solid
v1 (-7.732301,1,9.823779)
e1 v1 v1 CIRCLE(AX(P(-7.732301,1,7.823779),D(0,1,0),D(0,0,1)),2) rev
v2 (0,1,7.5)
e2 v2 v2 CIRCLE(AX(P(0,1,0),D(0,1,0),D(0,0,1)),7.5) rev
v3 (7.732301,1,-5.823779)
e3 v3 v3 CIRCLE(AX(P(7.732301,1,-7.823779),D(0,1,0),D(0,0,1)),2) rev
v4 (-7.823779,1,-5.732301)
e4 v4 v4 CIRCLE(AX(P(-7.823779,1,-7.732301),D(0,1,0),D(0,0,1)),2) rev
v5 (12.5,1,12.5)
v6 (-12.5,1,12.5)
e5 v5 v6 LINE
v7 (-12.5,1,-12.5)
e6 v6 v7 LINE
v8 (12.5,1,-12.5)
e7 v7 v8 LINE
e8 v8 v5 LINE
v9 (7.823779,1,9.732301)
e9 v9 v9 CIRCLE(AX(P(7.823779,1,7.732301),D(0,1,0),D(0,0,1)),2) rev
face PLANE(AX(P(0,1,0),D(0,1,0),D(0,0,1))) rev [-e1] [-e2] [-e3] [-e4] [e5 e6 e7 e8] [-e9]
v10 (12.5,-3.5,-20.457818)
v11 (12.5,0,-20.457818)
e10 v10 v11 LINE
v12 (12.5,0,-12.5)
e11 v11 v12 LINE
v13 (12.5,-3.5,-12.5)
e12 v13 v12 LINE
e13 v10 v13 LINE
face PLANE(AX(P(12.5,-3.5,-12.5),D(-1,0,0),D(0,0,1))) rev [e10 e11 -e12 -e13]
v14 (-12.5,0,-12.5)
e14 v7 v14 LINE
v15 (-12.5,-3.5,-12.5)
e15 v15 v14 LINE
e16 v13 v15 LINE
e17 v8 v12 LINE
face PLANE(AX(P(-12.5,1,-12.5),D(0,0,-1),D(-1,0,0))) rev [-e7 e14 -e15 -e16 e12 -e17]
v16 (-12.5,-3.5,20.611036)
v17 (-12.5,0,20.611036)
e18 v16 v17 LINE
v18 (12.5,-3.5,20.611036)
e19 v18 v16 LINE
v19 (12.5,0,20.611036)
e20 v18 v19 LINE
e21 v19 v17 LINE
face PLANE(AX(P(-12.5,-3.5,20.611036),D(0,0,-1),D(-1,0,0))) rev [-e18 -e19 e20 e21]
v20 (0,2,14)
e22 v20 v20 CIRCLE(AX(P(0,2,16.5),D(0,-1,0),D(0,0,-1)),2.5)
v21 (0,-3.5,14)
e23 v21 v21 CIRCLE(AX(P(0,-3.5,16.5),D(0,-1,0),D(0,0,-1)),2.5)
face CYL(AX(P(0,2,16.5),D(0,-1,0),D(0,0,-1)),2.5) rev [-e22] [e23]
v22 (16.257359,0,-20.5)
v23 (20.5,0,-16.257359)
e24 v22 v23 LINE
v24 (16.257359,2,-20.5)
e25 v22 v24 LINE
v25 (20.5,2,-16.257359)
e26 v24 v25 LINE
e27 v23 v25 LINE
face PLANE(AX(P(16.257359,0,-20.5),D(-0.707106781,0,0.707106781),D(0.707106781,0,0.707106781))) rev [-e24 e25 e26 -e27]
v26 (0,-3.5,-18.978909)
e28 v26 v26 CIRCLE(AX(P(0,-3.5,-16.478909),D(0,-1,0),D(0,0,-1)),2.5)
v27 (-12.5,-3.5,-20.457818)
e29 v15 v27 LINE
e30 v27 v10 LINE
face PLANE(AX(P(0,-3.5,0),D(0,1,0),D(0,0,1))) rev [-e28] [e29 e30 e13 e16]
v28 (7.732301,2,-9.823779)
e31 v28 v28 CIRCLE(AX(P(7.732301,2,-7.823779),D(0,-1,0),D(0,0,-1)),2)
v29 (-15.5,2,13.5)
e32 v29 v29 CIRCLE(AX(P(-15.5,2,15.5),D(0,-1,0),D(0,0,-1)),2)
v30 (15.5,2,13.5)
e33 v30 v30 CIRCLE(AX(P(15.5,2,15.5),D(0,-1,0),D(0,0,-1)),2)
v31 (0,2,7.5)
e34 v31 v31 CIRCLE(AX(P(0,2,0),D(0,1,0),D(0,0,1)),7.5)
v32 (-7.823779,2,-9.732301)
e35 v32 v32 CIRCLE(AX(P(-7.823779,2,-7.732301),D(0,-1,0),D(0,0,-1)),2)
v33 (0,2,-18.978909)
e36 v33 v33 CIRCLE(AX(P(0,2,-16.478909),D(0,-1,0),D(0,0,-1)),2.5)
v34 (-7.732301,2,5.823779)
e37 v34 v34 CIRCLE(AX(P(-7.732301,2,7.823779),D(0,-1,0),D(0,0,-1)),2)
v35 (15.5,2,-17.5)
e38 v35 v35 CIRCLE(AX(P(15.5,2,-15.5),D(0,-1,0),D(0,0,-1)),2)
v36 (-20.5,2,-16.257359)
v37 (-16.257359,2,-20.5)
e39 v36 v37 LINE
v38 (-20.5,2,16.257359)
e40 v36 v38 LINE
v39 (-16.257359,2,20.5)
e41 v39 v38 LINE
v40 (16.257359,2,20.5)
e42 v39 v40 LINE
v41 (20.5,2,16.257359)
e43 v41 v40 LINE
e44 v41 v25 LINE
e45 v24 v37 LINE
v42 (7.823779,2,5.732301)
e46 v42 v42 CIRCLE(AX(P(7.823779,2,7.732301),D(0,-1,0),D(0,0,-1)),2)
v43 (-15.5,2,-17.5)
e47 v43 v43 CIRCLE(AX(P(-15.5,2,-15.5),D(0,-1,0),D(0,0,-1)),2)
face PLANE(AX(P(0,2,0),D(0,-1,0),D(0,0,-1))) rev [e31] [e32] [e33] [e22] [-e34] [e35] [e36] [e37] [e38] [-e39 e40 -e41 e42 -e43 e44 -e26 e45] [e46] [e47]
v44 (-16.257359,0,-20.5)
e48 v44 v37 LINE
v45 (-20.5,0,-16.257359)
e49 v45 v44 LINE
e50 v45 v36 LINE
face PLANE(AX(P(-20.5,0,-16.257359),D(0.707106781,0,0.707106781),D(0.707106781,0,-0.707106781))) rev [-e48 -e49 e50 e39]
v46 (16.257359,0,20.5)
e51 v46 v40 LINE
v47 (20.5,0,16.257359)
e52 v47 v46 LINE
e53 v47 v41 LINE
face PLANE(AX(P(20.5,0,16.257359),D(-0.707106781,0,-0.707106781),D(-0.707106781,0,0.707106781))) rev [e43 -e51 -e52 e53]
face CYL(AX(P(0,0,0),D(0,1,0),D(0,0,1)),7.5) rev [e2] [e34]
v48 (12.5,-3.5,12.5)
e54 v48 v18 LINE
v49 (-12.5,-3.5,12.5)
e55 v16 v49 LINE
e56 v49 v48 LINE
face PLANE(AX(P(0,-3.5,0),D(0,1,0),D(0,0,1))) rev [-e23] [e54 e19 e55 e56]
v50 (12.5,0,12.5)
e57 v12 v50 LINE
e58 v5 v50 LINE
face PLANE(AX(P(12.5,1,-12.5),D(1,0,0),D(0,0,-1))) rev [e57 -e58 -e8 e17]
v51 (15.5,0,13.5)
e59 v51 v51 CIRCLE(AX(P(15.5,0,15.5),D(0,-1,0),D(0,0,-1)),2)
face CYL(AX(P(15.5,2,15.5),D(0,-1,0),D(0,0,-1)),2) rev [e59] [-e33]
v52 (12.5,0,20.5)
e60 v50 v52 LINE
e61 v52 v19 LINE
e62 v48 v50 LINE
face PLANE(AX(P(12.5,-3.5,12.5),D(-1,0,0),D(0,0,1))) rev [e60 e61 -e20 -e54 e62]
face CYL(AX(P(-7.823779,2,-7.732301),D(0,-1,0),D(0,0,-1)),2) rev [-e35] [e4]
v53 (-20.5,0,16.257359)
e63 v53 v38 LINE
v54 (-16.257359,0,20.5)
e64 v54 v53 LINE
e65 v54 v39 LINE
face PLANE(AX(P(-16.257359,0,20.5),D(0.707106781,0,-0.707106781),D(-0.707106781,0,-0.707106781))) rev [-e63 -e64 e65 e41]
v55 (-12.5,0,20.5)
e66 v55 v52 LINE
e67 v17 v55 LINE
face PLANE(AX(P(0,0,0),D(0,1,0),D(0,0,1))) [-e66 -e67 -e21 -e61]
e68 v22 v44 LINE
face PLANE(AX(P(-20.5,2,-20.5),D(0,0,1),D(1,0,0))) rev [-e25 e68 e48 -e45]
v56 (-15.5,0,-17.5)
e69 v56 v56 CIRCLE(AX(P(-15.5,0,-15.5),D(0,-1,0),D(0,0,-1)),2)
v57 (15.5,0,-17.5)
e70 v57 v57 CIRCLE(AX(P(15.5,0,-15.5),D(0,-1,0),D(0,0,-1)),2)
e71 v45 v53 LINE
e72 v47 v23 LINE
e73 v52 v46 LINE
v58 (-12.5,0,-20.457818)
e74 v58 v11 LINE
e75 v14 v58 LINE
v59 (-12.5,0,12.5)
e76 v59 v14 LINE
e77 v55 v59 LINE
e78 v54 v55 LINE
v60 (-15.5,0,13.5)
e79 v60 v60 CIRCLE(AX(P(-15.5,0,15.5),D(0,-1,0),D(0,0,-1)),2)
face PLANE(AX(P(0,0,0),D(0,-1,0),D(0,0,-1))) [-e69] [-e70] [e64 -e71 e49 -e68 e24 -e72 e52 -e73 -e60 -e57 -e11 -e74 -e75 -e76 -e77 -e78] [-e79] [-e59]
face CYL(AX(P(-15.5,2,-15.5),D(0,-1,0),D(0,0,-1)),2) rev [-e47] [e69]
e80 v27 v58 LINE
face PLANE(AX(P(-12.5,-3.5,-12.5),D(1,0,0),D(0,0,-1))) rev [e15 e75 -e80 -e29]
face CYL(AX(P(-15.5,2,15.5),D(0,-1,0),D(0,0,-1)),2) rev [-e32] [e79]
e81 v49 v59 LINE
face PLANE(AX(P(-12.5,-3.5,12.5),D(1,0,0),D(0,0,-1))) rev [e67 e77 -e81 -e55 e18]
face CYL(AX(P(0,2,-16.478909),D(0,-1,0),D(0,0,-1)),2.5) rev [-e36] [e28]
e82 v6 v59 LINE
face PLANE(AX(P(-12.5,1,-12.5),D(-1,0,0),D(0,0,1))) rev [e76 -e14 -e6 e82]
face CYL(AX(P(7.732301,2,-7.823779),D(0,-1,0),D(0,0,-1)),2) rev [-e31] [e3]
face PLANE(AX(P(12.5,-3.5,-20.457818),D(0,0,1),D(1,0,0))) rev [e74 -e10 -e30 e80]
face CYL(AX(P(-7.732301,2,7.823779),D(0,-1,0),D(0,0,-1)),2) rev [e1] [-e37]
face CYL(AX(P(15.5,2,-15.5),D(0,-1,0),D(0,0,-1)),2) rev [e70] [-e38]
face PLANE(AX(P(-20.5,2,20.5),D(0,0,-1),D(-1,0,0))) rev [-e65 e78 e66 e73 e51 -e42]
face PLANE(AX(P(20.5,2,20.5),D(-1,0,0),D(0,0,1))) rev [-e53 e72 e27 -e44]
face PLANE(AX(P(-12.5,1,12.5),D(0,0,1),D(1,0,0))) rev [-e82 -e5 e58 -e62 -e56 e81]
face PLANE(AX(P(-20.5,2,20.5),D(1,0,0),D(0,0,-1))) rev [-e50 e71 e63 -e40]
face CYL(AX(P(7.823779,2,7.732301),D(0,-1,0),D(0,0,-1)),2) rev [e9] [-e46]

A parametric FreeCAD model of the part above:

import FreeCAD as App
import Part
import Sketcher
from FreeCAD import Vector
Q = App.Units.Quantity

doc = App.newDocument("Part")
body = doc.addObject("PartDesign::Body", "Body")

# Sketch on XZ plane
sketch1 = body.newObject("Sketcher::SketchObject", "Sketch")
sketch1.AttachmentSupport = (doc.getObject("XZ_Plane"), [""])
sketch1.MapMode = "FlatFace"
sketch1.addGeometry([
    Part.LineSegment(Vector(-20.5, -20.5, 0), Vector(-20.5, 20.5, 0)),
    Part.LineSegment(Vector(-20.5, 20.5, 0), Vector(20.5, 20.5, 0)),
    Part.LineSegment(Vector(20.5, 20.5, 0), Vector(20.5, -20.5, 0)),
    Part.LineSegment(Vector(20.5, -20.5, 0), Vector(-20.5, -20.5, 0)),
], False)
sketch1.addConstraint([
    Sketcher.Constraint("Coincident", 0, 2, 1, 1),
    Sketcher.Constraint("Coincident", 1, 2, 2, 1),
    Sketcher.Constraint("Coincident", 2, 2, 3, 1),
    Sketcher.Constraint("Coincident", 3, 2, 0, 1),
    Sketcher.Constraint("Vertical", 0),
    Sketcher.Constraint("Horizontal", 1),
    Sketcher.Constraint("Vertical", 2),
    Sketcher.Constraint("Horizontal", 3),
    Sketcher.Constraint("Symmetric", 0, 2, 2, 2, -1, 1),
    Sketcher.Constraint("Equal", 3, 0),
    Sketcher.Constraint("DistanceX", 1, 1, 1, 2, Q("41 mm")),
])
pad1 = body.newObject("PartDesign::Pad", "Pad")
pad1.Profile = sketch1
pad1.Length = 2
pad1.Reversed = True

# Sketch on XZ plane
sketch2 = body.newObject("Sketcher::SketchObject", "Sketch001")
sketch2.AttachmentSupport = (doc.getObject("XZ_Plane"), [""])
sketch2.MapMode = "FlatFace"
sketch2.addGeometry([
    Part.Circle(Vector(-7.732301, 7.823779, 0), Vector(0, 0, 1), 2),
    Part.Circle(Vector(7.823779, 7.732301, 0), Vector(0, 0, 1), 2),
    Part.Circle(Vector(7.732301, -7.823779, 0), Vector(0, 0, 1), 2),
    Part.Circle(Vector(-7.823779, -7.732301, 0), Vector(0, 0, 1), 2),
], False)
sketch2.addConstraint([
    Sketcher.Constraint("Equal", 0, 1),
    Sketcher.Constraint("Equal", 1, 2),
    Sketcher.Constraint("Equal", 2, 3),
    Sketcher.Constraint("Symmetric", 0, 3, 2, 3, -1, 1),
    Sketcher.Constraint("Symmetric", 1, 3, 3, 3, -1, 1),
    Sketcher.Constraint("Diameter", 0, Q("4 mm")),
    Sketcher.Constraint("DistanceX", 0, 3, -1, 1, Q("7.732301 mm")),
    Sketcher.Constraint("DistanceY", -1, 1, 1, 3, Q("7.732301 mm")),
    Sketcher.Constraint("DistanceY", -1, 1, 0, 3, Q("7.823779 mm")),
    Sketcher.Constraint("DistanceX", -1, 1, 1, 3, Q("7.823779 mm")),
])
pocket1 = body.newObject("PartDesign::Pocket", "Pocket")
pocket1.Profile = sketch2
pocket1.Type = "ThroughAll"

# Sketch on XZ plane
sketch3 = body.newObject("Sketcher::SketchObject", "Sketch002")
sketch3.AttachmentSupport = (doc.getObject("XZ_Plane"), [""])
sketch3.MapMode = "FlatFace"
sketch3.AttachmentOffset = App.Placement(Vector(0, 0, -2), App.Rotation())
sketch3.addGeometry(Part.Circle(Vector(0, 0, 0), Vector(0, 0, 1), 7.5), False)
sketch3.addConstraint([
    Sketcher.Constraint("Coincident", 0, 3, -1, 1),
    Sketcher.Constraint("Diameter", 0, Q("15 mm")),
])
pocket2 = body.newObject("PartDesign::Pocket", "Pocket001")
pocket2.Profile = sketch3
pocket2.Type = "ThroughAll"
pocket2.Reversed = True

# Sketch on XZ plane
sketch4 = body.newObject("Sketcher::SketchObject", "Sketch003")
sketch4.AttachmentSupport = (doc.getObject("XZ_Plane"), [""])
sketch4.MapMode = "FlatFace"
sketch4.addGeometry([
    Part.LineSegment(Vector(-12.5, 12.5, 0), Vector(-12.5, -12.5, 0)),
    Part.LineSegment(Vector(-12.5, -12.5, 0), Vector(12.5, -12.5, 0)),
    Part.LineSegment(Vector(12.5, -12.5, 0), Vector(12.5, 12.5, 0)),
    Part.LineSegment(Vector(12.5, 12.5, 0), Vector(-12.5, 12.5, 0)),
], False)
sketch4.addConstraint([
    Sketcher.Constraint("Coincident", 0, 2, 1, 1),
    Sketcher.Constraint("Coincident", 1, 2, 2, 1),
    Sketcher.Constraint("Coincident", 2, 2, 3, 1),
    Sketcher.Constraint("Coincident", 3, 2, 0, 1),
    Sketcher.Constraint("Vertical", 0),
    Sketcher.Constraint("Horizontal", 1),
    Sketcher.Constraint("Vertical", 2),
    Sketcher.Constraint("Horizontal", 3),
    Sketcher.Constraint("Symmetric", 0, 2, 2, 2, -1, 1),
    Sketcher.Constraint("Equal", 3, 0),
    Sketcher.Constraint("DistanceX", 1, 1, 1, 2, Q("25 mm")),
])
pocket3 = body.newObject("PartDesign::Pocket", "Pocket002")
pocket3.Profile = sketch4
pocket3.Length = 1

# Sketch on XZ plane
sketch5 = body.newObject("Sketcher::SketchObject", "Sketch004")
sketch5.AttachmentSupport = (doc.getObject("XZ_Plane"), [""])
sketch5.MapMode = "FlatFace"
sketch5.AttachmentOffset = App.Placement(Vector(0, 0, -2), App.Rotation())
sketch5.addGeometry([
    Part.LineSegment(Vector(-20.5, -16.257359, 0), Vector(-16.257359, -20.5, 0)),  # 0
    Part.LineSegment(Vector(-16.257359, -20.5, 0), Vector(-20.5, -20.5, 0)),  # 1
    Part.LineSegment(Vector(-20.5, -20.5, 0), Vector(-20.5, -16.257359, 0)),  # 2
    Part.LineSegment(Vector(16.257359, -20.5, 0), Vector(20.5, -16.257359, 0)),  # 3
    Part.LineSegment(Vector(20.5, -16.257359, 0), Vector(20.5, -20.5, 0)),  # 4
    Part.LineSegment(Vector(20.5, -20.5, 0), Vector(16.257359, -20.5, 0)),  # 5
    Part.LineSegment(Vector(20.5, 16.257359, 0), Vector(16.257359, 20.5, 0)),  # 6
    Part.LineSegment(Vector(16.257359, 20.5, 0), Vector(20.5, 20.5, 0)),  # 7
    Part.LineSegment(Vector(20.5, 20.5, 0), Vector(20.5, 16.257359, 0)),  # 8
    Part.LineSegment(Vector(-16.257359, 20.5, 0), Vector(-20.5, 16.257359, 0)),  # 9
    Part.LineSegment(Vector(-20.5, 16.257359, 0), Vector(-20.5, 20.5, 0)),  # 10
    Part.LineSegment(Vector(-20.5, 20.5, 0), Vector(-16.257359, 20.5, 0)),  # 11
], False)
sketch5.addConstraint([
    Sketcher.Constraint("Coincident", 0, 2, 1, 1),
    Sketcher.Constraint("Coincident", 1, 2, 2, 1),
    Sketcher.Constraint("Coincident", 2, 2, 0, 1),
    Sketcher.Constraint("Coincident", 3, 2, 4, 1),
    Sketcher.Constraint("Coincident", 4, 2, 5, 1),
    Sketcher.Constraint("Coincident", 5, 2, 3, 1),
    Sketcher.Constraint("Coincident", 6, 2, 7, 1),
    Sketcher.Constraint("Coincident", 7, 2, 8, 1),
    Sketcher.Constraint("Coincident", 8, 2, 6, 1),
    Sketcher.Constraint("Coincident", 9, 2, 10, 1),
    Sketcher.Constraint("Coincident", 10, 2, 11, 1),
    Sketcher.Constraint("Coincident", 11, 2, 9, 1),
    Sketcher.Constraint("Horizontal", 1),
    Sketcher.Constraint("Vertical", 2),
    Sketcher.Constraint("Vertical", 4),
    Sketcher.Constraint("Horizontal", 5),
    Sketcher.Constraint("Horizontal", 7),
    Sketcher.Constraint("Vertical", 8),
    Sketcher.Constraint("Vertical", 10),
    Sketcher.Constraint("Horizontal", 11),
    Sketcher.Constraint("Symmetric", 0, 2, 6, 2, -1, 1),
    Sketcher.Constraint("Symmetric", 2, 2, 8, 2, -1, 1),
    Sketcher.Constraint("Symmetric", 3, 2, 9, 2, -1, 1),
    Sketcher.Constraint("Symmetric", 5, 2, 11, 2, -1, 1),
    Sketcher.Constraint("Symmetric", 2, 2, 3, 2, -2),
    Sketcher.Constraint("Symmetric", 0, 2, 5, 2, -2),
    Sketcher.Constraint("Perpendicular", 0, 3),
    Sketcher.Constraint("Distance", 0, Q("6 mm")),
    Sketcher.Constraint("DistanceX", 2, 2, 3, 2, Q("41 mm")),
    Sketcher.Constraint("DistanceY", 5, 2, 6, 2, Q("41 mm")),
])
pocket4 = body.newObject("PartDesign::Pocket", "Pocket003")
pocket4.Profile = sketch5
pocket4.Type = "ThroughAll"
pocket4.Reversed = True

# Sketch on XZ plane
sketch6 = body.newObject("Sketcher::SketchObject", "Sketch005")
sketch6.AttachmentSupport = (doc.getObject("XZ_Plane"), [""])
sketch6.MapMode = "FlatFace"
sketch6.addGeometry([
    Part.Circle(Vector(-15.5, 15.5, 0), Vector(0, 0, 1), 2),
    Part.Circle(Vector(15.5, 15.5, 0), Vector(0, 0, 1), 2),
    Part.Circle(Vector(15.5, -15.5, 0), Vector(0, 0, 1), 2),
    Part.Circle(Vector(-15.5, -15.5, 0), Vector(0, 0, 1), 2),
], False)
sketch6.addConstraint([
    Sketcher.Constraint("Equal", 0, 1),
    Sketcher.Constraint("Equal", 1, 2),
    Sketcher.Constraint("Equal", 2, 3),
    Sketcher.Constraint("Symmetric", 0, 3, 2, 3, -1, 1),
    Sketcher.Constraint("Symmetric", 1, 3, 3, 3, -1, 1),
    Sketcher.Constraint("Symmetric", 0, 3, 1, 3, -2),
    Sketcher.Constraint("Diameter", 0, Q("4 mm")),
    Sketcher.Constraint("DistanceX", 0, 3, 1, 3, Q("31 mm")),
    Sketcher.Constraint("DistanceY", 2, 3, 1, 3, Q("31 mm")),
])
pocket5 = body.newObject("PartDesign::Pocket", "Pocket004")
pocket5.Profile = sketch6
pocket5.Type = "ThroughAll"

# Sketch on XZ plane
sketch7 = body.newObject("Sketcher::SketchObject", "Sketch006")
sketch7.AttachmentSupport = (doc.getObject("XZ_Plane"), [""])
sketch7.MapMode = "FlatFace"
sketch7.addGeometry([
    Part.LineSegment(Vector(-12.5, 20.611036, 0), Vector(-12.5, 12.5, 0)),  # 0
    Part.LineSegment(Vector(-12.5, 12.5, 0), Vector(12.5, 12.5, 0)),  # 1
    Part.LineSegment(Vector(12.5, 12.5, 0), Vector(12.5, 20.611036, 0)),  # 2
    Part.LineSegment(Vector(12.5, 20.611036, 0), Vector(-12.5, 20.611036, 0)),  # 3
    Part.LineSegment(Vector(-12.5, -12.5, 0), Vector(-12.5, -20.457818, 0)),  # 4
    Part.LineSegment(Vector(-12.5, -20.457818, 0), Vector(12.5, -20.457818, 0)),  # 5
    Part.LineSegment(Vector(12.5, -20.457818, 0), Vector(12.5, -12.5, 0)),  # 6
    Part.LineSegment(Vector(12.5, -12.5, 0), Vector(-12.5, -12.5, 0)),  # 7
], False)
sketch7.addConstraint([
    Sketcher.Constraint("Coincident", 0, 2, 1, 1),
    Sketcher.Constraint("Coincident", 1, 2, 2, 1),
    Sketcher.Constraint("Coincident", 2, 2, 3, 1),
    Sketcher.Constraint("Coincident", 3, 2, 0, 1),
    Sketcher.Constraint("Coincident", 4, 2, 5, 1),
    Sketcher.Constraint("Coincident", 5, 2, 6, 1),
    Sketcher.Constraint("Coincident", 6, 2, 7, 1),
    Sketcher.Constraint("Coincident", 7, 2, 4, 1),
    Sketcher.Constraint("Vertical", 0),
    Sketcher.Constraint("Horizontal", 1),
    Sketcher.Constraint("Vertical", 2),
    Sketcher.Constraint("Horizontal", 3),
    Sketcher.Constraint("Vertical", 4),
    Sketcher.Constraint("Horizontal", 5),
    Sketcher.Constraint("Vertical", 6),
    Sketcher.Constraint("Horizontal", 7),
    Sketcher.Constraint("Symmetric", 0, 2, 6, 2, -1, 1),
    Sketcher.Constraint("Vertical", 3, 2, 4, 2),
    Sketcher.Constraint("Vertical", 2, 2, 5, 2),
    Sketcher.Constraint("DistanceX", 1, 1, 1, 2, Q("25 mm")),
    Sketcher.Constraint("DistanceY", 6, 2, 1, 2, Q("25 mm")),
    Sketcher.Constraint("DistanceY", 0, 2, 0, 1, Q("8.111036 mm")),
    Sketcher.Constraint("DistanceY", 4, 2, 4, 1, Q("7.957818 mm")),
])
pad2 = body.newObject("PartDesign::Pad", "Pad001")
pad2.Profile = sketch7
pad2.Length = 3.5

# Sketch on XZ plane
sketch8 = body.newObject("Sketcher::SketchObject", "Sketch007")
sketch8.AttachmentSupport = (doc.getObject("XZ_Plane"), [""])
sketch8.MapMode = "FlatFace"
sketch8.AttachmentOffset = App.Placement(Vector(0, 0, 3.5), App.Rotation())
sketch8.addGeometry([
    Part.Circle(Vector(0, 16.5, 0), Vector(0, 0, 1), 2.5),
    Part.Circle(Vector(0, -16.478909, 0), Vector(0, 0, 1), 2.5),
], False)
sketch8.addConstraint([
    Sketcher.Constraint("Equal", 0, 1),
    Sketcher.Constraint("PointOnObject", 0, 3, -2),
    Sketcher.Constraint("PointOnObject", 1, 3, -2),
    Sketcher.Constraint("Diameter", 0, Q("5 mm")),
    Sketcher.Constraint("DistanceY", -1, 1, 0, 3, Q("16.5 mm")),
    Sketcher.Constraint("DistanceY", 1, 3, -1, 1, Q("16.478909 mm")),
])
pocket6 = body.newObject("PartDesign::Pocket", "Pocket005")
pocket6.Profile = sketch8
pocket6.Type = "ThroughAll"

doc.recompute()
